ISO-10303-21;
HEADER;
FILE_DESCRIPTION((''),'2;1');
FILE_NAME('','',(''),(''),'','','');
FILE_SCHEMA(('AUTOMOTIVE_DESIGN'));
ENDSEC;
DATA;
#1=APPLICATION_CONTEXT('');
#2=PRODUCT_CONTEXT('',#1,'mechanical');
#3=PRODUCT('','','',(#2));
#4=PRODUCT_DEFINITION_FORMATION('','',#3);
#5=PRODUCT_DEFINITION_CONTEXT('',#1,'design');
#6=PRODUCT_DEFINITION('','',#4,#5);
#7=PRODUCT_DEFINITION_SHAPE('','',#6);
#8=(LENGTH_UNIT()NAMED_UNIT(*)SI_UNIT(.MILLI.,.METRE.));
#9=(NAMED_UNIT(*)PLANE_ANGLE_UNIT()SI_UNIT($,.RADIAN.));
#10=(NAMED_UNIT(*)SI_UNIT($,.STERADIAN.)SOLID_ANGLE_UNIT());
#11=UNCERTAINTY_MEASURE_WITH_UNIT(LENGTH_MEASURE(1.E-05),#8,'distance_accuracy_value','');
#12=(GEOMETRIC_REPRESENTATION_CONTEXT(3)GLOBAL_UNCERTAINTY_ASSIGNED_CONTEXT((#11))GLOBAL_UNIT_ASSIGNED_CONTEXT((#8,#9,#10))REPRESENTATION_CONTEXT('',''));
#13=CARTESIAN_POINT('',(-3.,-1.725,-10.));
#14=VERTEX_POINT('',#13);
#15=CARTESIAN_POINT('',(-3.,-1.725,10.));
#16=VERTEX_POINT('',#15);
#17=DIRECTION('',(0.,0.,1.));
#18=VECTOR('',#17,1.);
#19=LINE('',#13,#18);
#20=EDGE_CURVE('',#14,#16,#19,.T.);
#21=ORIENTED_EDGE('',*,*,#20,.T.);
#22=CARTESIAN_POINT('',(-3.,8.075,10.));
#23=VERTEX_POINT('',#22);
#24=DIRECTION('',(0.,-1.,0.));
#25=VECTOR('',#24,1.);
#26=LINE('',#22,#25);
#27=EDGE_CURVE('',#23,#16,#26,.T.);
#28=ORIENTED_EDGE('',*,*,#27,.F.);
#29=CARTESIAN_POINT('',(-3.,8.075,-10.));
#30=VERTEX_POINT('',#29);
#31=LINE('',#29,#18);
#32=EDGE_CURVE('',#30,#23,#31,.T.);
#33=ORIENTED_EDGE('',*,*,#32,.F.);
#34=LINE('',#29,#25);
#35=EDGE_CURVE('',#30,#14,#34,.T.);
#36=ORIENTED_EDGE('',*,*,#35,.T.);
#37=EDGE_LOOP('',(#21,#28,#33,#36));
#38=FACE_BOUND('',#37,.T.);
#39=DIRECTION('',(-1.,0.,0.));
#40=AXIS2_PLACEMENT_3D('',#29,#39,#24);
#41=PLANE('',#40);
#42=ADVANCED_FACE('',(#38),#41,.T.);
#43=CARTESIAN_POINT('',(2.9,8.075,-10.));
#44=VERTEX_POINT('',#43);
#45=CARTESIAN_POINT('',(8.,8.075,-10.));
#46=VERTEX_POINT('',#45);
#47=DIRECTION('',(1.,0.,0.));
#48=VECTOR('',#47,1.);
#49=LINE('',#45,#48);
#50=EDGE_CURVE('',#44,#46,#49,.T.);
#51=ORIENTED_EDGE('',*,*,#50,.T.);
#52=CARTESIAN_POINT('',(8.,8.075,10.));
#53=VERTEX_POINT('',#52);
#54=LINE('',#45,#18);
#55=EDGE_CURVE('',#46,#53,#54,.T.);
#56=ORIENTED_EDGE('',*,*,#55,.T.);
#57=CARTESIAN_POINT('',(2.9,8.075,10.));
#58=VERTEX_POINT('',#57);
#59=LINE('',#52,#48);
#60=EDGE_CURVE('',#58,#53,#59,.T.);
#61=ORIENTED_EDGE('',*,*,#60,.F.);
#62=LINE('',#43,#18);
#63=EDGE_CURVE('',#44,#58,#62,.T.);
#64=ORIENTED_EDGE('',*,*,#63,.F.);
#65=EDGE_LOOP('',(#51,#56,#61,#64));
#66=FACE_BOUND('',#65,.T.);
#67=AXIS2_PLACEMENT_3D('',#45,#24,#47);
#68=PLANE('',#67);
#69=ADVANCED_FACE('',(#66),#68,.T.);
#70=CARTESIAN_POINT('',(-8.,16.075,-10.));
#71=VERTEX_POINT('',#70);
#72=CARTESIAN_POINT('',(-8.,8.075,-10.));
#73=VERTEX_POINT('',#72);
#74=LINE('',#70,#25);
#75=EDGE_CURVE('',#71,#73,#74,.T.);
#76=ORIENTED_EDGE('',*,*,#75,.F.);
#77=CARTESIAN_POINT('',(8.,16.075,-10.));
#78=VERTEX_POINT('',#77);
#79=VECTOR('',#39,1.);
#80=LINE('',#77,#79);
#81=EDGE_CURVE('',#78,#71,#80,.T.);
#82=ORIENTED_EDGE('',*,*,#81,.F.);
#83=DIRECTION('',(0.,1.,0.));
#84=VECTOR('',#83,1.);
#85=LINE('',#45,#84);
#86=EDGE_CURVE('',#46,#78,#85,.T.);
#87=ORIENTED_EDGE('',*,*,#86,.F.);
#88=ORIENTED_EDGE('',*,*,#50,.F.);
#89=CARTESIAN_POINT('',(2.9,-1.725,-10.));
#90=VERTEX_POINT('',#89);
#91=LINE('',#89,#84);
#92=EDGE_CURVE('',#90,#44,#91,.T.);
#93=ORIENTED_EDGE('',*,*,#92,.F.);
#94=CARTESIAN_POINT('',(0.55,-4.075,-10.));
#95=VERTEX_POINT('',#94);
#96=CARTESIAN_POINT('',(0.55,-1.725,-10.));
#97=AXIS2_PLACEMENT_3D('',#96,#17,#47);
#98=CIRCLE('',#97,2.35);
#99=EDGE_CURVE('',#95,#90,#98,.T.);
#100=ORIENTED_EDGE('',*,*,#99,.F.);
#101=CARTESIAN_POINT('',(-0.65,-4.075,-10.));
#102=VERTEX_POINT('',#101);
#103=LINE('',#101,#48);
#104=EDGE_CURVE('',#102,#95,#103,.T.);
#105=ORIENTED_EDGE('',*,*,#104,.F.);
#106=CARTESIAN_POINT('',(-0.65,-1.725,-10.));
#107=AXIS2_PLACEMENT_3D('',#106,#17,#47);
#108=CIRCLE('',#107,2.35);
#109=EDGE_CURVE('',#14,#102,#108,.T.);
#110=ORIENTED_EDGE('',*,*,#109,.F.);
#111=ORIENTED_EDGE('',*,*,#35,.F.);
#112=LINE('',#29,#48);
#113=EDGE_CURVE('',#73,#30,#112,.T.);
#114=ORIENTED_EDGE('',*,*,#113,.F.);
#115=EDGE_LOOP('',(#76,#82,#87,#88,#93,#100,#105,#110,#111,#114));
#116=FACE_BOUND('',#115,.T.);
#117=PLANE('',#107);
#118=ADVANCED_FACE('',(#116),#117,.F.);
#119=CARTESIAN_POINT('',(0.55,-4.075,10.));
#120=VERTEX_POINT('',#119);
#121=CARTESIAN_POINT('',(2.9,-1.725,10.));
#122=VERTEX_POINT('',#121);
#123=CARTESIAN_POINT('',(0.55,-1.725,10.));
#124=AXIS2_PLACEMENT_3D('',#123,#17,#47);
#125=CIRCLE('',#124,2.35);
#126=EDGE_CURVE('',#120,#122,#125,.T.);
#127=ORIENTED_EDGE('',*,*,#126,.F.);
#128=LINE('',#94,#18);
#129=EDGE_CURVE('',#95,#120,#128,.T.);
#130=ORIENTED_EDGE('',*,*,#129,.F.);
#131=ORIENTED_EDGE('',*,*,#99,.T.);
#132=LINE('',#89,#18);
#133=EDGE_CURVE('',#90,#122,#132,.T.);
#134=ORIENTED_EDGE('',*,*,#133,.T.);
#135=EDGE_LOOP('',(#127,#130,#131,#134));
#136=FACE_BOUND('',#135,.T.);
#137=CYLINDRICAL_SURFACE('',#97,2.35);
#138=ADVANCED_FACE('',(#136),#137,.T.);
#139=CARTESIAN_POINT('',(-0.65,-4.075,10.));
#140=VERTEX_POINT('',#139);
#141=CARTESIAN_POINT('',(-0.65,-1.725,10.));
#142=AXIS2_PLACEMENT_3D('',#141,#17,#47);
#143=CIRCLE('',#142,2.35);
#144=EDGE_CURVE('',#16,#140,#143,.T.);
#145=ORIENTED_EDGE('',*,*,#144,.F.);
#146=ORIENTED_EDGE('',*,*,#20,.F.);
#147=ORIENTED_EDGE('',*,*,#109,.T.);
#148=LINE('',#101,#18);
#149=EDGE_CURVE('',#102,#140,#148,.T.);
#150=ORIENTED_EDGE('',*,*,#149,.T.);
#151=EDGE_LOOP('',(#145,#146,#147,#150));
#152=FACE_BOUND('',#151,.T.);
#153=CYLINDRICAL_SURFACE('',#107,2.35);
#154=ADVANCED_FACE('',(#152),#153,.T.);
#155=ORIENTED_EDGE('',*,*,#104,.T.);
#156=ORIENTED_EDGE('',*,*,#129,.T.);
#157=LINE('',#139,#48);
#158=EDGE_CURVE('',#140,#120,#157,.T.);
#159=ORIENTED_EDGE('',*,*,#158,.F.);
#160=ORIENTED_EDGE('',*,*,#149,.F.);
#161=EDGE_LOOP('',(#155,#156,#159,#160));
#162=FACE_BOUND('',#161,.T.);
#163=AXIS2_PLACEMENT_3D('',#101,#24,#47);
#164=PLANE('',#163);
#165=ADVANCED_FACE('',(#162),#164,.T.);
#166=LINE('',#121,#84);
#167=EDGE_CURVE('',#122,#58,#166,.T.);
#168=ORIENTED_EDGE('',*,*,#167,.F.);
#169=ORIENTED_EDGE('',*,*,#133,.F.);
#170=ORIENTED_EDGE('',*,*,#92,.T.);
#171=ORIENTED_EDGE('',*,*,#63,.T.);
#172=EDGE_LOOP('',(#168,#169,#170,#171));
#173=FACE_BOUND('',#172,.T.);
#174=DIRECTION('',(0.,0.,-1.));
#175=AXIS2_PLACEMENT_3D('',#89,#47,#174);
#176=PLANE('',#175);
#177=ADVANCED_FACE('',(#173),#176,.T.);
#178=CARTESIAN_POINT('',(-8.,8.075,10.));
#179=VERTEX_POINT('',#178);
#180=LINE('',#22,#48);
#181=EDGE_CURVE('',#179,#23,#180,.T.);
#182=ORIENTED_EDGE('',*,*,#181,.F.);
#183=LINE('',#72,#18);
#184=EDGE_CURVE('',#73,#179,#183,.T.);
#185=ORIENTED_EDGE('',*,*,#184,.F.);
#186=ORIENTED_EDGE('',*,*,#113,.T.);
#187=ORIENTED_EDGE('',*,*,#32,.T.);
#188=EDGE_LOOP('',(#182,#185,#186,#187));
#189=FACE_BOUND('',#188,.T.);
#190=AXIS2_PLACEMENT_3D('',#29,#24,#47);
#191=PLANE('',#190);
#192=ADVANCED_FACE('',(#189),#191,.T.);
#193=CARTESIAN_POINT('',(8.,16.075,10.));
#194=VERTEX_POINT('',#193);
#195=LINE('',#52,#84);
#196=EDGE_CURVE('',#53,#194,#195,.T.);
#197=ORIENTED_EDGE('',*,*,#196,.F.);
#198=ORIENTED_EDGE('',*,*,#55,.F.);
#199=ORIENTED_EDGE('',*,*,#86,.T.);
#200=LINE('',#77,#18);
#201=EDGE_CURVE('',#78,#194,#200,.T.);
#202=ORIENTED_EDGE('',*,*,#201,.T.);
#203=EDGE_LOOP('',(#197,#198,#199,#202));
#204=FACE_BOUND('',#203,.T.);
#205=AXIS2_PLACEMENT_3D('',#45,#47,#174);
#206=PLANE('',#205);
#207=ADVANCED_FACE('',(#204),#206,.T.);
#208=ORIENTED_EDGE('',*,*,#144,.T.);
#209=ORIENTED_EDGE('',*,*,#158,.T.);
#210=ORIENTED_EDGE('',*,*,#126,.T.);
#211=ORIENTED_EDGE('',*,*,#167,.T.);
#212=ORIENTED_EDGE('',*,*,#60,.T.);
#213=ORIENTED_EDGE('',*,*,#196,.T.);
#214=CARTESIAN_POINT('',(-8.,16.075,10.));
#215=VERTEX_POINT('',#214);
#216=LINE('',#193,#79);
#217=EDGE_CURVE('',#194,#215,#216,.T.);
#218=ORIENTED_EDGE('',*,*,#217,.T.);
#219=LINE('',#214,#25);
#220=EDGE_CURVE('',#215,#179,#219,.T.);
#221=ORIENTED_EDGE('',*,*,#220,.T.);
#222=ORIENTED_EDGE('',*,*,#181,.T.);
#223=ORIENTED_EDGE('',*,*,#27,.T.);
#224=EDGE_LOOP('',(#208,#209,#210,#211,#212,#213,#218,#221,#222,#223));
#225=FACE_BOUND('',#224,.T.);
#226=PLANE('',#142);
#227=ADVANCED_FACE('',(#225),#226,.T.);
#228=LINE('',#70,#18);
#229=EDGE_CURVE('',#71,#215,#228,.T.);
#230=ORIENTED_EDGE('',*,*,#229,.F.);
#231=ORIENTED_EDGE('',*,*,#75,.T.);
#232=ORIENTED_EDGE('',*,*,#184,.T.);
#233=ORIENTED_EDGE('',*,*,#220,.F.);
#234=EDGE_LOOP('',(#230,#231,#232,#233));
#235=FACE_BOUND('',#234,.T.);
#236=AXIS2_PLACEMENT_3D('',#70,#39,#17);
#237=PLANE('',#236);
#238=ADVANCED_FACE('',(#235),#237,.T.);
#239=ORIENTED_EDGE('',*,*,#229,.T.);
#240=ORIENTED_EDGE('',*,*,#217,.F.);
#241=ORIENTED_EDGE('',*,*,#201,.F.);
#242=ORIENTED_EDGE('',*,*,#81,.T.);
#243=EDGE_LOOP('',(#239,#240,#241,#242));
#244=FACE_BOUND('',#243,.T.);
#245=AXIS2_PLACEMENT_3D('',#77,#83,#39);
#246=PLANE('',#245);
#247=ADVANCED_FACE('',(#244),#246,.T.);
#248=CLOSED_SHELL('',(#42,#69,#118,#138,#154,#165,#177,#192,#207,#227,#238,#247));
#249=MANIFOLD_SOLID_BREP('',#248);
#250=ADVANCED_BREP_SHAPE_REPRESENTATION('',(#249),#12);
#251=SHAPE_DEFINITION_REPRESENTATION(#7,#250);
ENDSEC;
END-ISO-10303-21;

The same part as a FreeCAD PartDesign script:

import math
import FreeCAD as App
import Part
import Sketcher

V = App.Vector
Q = App.Units.Quantity

doc = App.newDocument("Part")
body = doc.addObject("PartDesign::Body", "Body")

# Sketch on XY plane
sketch1 = body.newObject("Sketcher::SketchObject", "Sketch")
sketch1.AttachmentSupport = (doc.getObject("XY_Plane"), [""])
sketch1.MapMode = "FlatFace"
sketch1.addGeometry([
    Part.LineSegment(V(2.9, 8.1, 0), V(8, 8.1, 0)),  # 0
    Part.LineSegment(V(8, 8.1, 0), V(8, 16.1, 0)),  # 1
    Part.LineSegment(V(8, 16.1, 0), V(-8, 16.1, 0)),  # 2
    Part.LineSegment(V(-8, 16.1, 0), V(-8, 8.1, 0)),  # 3
    Part.LineSegment(V(-8, 8.1, 0), V(-3, 8.1, 0)),  # 4
    Part.LineSegment(V(-3, 8.1, 0), V(-3, -1.7, 0)),  # 5
    Part.ArcOfCircle(Part.Circle(V(-0.7, -1.7, 0), V(0, 0, 1), 2.3), math.radians(180), math.radians(270)),  # 6
    Part.LineSegment(V(-0.7, -4.1, 0), V(0.6, -4.1, 0)),  # 7
    Part.ArcOfCircle(Part.Circle(V(0.6, -1.7, 0), V(0, 0, 1), 2.3), math.radians(-90), math.radians(0)),  # 8
    Part.LineSegment(V(2.9, -1.7, 0), V(2.9, 8.1, 0)),  # 9
], False)
sketch1.addConstraint([
    Sketcher.Constraint("Coincident", 0, 2, 1, 1),
    Sketcher.Constraint("Coincident", 1, 2, 2, 1),
    Sketcher.Constraint("Coincident", 2, 2, 3, 1),
    Sketcher.Constraint("Coincident", 3, 2, 4, 1),
    Sketcher.Constraint("Coincident", 4, 2, 5, 1),
    Sketcher.Constraint("Tangent", 5, 2, 6, 1),
    Sketcher.Constraint("Tangent", 6, 2, 7, 1),
    Sketcher.Constraint("Tangent", 7, 2, 8, 1),
    Sketcher.Constraint("Tangent", 8, 2, 9, 1),
    Sketcher.Constraint("Coincident", 9, 2, 0, 1),
    Sketcher.Constraint("Horizontal", 0),
    Sketcher.Constraint("Vertical", 1),
    Sketcher.Constraint("Horizontal", 2),
    Sketcher.Constraint("Vertical", 3),
    Sketcher.Constraint("Horizontal", 4),
    Sketcher.Constraint("Vertical", 5),
    Sketcher.Constraint("Horizontal", 7),
    Sketcher.Constraint("Vertical", 9),
    Sketcher.Constraint("Equal", 6, 8),
    Sketcher.Constraint("Symmetric", 0, 2, 3, 2, -2),
    Sketcher.Constraint("DistanceX", 2, 2, 2, 1, Q("16 mm")),
    Sketcher.Constraint("DistanceX", 4, 1, 4, 2, Q("5 mm")),
    Sketcher.Constraint("DistanceY", 1, 1, 1, 2, Q("8 mm")),
    Sketcher.Constraint("Radius", 6, Q("2.35 mm")),
    Sketcher.Constraint("DistanceX", 0, 1, 0, 2, Q("5.1 mm")),
    Sketcher.Constraint("DistanceY", 5, 2, 5, 1, Q("9.8 mm")),
    Sketcher.Constraint("DistanceY", 6, 3, -1, 1, Q("1.725 mm")),
])
pad1 = body.newObject("PartDesign::Pad", "Pad")
pad1.Profile = sketch1
pad1.Length = 20
pad1.Midplane = True

doc.recompute()
